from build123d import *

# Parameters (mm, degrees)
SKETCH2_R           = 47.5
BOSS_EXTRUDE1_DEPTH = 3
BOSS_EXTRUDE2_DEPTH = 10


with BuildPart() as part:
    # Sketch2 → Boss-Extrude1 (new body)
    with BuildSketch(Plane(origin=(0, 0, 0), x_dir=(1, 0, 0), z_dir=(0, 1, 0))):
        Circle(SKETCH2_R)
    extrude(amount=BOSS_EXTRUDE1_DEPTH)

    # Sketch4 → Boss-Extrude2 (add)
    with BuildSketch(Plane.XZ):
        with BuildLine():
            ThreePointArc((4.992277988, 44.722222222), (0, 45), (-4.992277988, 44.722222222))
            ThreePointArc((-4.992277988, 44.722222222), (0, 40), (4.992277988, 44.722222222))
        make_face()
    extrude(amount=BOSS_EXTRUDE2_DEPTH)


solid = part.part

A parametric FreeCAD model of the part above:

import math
import FreeCAD as App
import Part
import Sketcher
from FreeCAD import Vector
Q = App.Units.Quantity

doc = App.newDocument("Part")
body = doc.addObject("PartDesign::Body", "Body")

# Sketch on XZ plane
sketch1 = body.newObject("Sketcher::SketchObject", "Sketch")
sketch1.AttachmentSupport = (doc.getObject("XZ_Plane"), [""])
sketch1.MapMode = "FlatFace"
sketch1.addGeometry(Part.Circle(Vector(0, 0, 0), Vector(0, 0, 1), 47.5), False)
sketch1.addConstraint([
    Sketcher.Constraint("Coincident", 0, 3, -1, 1),
    Sketcher.Constraint("Diameter", 0, Q("95 mm")),
])
pad1 = body.newObject("PartDesign::Pad", "Pad")
pad1.Profile = sketch1
pad1.Length = 3
pad1.Reversed = True

# Sketch on XZ plane
sketch2 = body.newObject("Sketcher::SketchObject", "Sketch001")
sketch2.AttachmentSupport = (doc.getObject("XZ_Plane"), [""])
sketch2.MapMode = "FlatFace"
sketch2.addGeometry([
    Part.ArcOfCircle(Part.Circle(Vector(0, 0, 0), Vector(0, 0, 1), 45), math.radians(83.630523), math.radians(96.369477)),
    Part.ArcOfCircle(Part.Circle(Vector(0, 45, 0), Vector(0, 0, 1), 5), math.radians(-176.815261), math.radians(-3.184739)),
], False)
sketch2.addConstraint([
    Sketcher.Constraint("Coincident", 0, 1, 1, 2),
    Sketcher.Constraint("Coincident", 1, 1, 0, 2),
    Sketcher.Constraint("Coincident", 0, 3, -1, 1),
    Sketcher.Constraint("PointOnObject", 1, 3, -2),
    Sketcher.Constraint("Radius", 0, Q("45 mm")),
    Sketcher.Constraint("Radius", 1, Q("5 mm")),
    Sketcher.Constraint("DistanceY", -1, 1, 1, 3, Q("45 mm")),
])
pad2 = body.newObject("PartDesign::Pad", "Pad001")
pad2.Profile = sketch2
pad2.Length = 10

doc.recompute()
